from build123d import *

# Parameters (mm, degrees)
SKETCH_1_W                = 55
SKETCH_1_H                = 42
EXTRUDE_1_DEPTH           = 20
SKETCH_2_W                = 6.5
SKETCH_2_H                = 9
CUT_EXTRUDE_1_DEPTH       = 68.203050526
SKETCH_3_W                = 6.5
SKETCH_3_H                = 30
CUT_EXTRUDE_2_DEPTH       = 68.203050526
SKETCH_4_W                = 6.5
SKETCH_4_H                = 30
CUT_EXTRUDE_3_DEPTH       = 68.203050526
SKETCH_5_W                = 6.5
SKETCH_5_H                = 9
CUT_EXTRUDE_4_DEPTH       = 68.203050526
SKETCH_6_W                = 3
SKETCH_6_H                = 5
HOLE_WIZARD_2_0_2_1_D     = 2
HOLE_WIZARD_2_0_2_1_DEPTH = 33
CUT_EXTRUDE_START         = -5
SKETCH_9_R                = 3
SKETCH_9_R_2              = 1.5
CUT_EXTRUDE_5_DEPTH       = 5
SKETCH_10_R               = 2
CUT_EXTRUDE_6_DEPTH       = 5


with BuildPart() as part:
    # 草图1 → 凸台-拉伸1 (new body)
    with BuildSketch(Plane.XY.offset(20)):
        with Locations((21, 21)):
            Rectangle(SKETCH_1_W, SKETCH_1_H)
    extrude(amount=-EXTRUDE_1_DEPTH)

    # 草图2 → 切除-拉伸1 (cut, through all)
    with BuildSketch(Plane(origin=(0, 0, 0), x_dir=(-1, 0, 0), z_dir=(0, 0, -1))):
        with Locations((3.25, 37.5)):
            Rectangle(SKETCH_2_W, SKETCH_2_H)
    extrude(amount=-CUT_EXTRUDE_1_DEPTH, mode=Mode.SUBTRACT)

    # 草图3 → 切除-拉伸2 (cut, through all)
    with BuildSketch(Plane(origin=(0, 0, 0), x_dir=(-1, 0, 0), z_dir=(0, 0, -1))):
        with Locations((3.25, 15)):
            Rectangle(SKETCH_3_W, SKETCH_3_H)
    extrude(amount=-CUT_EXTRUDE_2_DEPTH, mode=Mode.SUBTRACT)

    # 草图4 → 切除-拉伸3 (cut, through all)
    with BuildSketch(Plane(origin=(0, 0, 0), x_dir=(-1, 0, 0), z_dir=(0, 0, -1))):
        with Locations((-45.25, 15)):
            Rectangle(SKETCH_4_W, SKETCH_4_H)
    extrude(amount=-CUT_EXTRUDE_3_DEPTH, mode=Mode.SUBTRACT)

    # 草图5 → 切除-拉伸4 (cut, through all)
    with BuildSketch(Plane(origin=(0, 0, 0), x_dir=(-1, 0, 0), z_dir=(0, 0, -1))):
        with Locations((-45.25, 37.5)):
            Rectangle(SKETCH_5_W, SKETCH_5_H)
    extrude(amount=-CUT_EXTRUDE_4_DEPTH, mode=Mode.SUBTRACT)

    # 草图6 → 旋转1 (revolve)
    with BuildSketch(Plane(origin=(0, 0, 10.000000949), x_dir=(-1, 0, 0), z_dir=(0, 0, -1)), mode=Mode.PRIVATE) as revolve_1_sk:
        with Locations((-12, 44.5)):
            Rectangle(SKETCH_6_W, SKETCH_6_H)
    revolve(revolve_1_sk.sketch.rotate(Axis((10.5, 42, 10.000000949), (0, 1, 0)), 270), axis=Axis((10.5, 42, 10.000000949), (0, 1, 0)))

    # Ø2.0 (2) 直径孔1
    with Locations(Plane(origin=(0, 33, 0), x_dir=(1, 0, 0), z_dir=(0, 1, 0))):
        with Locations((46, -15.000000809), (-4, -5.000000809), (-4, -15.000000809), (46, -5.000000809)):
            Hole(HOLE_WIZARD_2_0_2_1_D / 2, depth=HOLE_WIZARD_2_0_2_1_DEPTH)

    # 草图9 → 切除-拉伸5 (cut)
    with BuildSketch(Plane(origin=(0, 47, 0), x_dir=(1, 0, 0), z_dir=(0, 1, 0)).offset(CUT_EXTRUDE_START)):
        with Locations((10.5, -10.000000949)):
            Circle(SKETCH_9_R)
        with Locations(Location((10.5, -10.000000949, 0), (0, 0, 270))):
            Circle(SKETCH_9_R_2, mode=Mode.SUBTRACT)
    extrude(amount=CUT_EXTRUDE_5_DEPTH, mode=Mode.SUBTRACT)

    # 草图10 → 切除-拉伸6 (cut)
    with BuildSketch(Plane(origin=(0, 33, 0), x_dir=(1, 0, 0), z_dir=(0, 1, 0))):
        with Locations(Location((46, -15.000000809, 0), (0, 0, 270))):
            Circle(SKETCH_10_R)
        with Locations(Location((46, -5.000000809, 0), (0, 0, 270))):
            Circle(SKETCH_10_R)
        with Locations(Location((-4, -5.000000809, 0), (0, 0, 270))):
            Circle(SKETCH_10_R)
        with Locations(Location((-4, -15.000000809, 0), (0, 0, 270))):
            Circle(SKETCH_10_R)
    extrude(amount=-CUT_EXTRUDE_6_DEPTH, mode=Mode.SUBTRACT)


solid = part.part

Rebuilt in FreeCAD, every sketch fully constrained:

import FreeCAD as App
import Part
import Sketcher
from FreeCAD import Vector
Q = App.Units.Quantity


def add_polygon(sketch, points):
    """Adds a closed chain of lines whose ends are joined by coincident constraints."""
    first, n = sketch.GeometryCount, len(points)
    for a, b in zip(points, points[1:] + points[:1]):
        sketch.addGeometry(Part.LineSegment(App.Vector(*a, 0), App.Vector(*b, 0)), False)
    for i in range(n):
        sketch.addConstraint(Sketcher.Constraint("Coincident", first + i, 2, first + (i + 1) % n, 1))

doc = App.newDocument("Part")
body = doc.addObject("PartDesign::Body", "Body")

# Sketch on XY plane
sketch1 = body.newObject("Sketcher::SketchObject", "Sketch")
sketch1.AttachmentSupport = (doc.getObject("XY_Plane"), [""])
sketch1.MapMode = "FlatFace"
sketch1.AttachmentOffset = App.Placement(Vector(0, 0, 20), App.Rotation())
add_polygon(sketch1, [(-6, 42), (-6, 0), (48, 0), (48, 42)])  # lines 0-3
sketch1.addConstraint(Sketcher.Constraint("Vertical", 0))
sketch1.addConstraint(Sketcher.Constraint("Horizontal", 1))
sketch1.addConstraint(Sketcher.Constraint("Vertical", 2))
sketch1.addConstraint(Sketcher.Constraint("Horizontal", 3))
sketch1.addConstraint(Sketcher.Constraint("PointOnObject", 0, 2, -1))
sketch1.addConstraint(Sketcher.Constraint("DistanceX", 1, 1, 1, 2, Q("55 mm")))
sketch1.addConstraint(Sketcher.Constraint("DistanceY", 0, 2, 0, 1, Q("42 mm")))
sketch1.addConstraint(Sketcher.Constraint("DistanceX", 0, 2, -1, 1, Q("6.5 mm")))
pad1 = body.newObject("PartDesign::Pad", "Pad")
pad1.Profile = sketch1
pad1.Length = 20
pad1.Reversed = True

# Sketch on XY plane
sketch2 = body.newObject("Sketcher::SketchObject", "Sketch001")
sketch2.AttachmentSupport = (doc.getObject("XY_Plane"), [""])
sketch2.MapMode = "FlatFace"
add_polygon(sketch2, [(0, 42), (0, 33), (-6, 33), (-6, 42)])  # lines 0-3
sketch2.addConstraint(Sketcher.Constraint("Vertical", 0))
sketch2.addConstraint(Sketcher.Constraint("Horizontal", 1))
sketch2.addConstraint(Sketcher.Constraint("Vertical", 2))
sketch2.addConstraint(Sketcher.Constraint("Horizontal", 3))
sketch2.addConstraint(Sketcher.Constraint("PointOnObject", 0, 2, -2))
sketch2.addConstraint(Sketcher.Constraint("DistanceY", 0, 2, 0, 1, Q("9 mm")))
sketch2.addConstraint(Sketcher.Constraint("DistanceX", 1, 2, 1, 1, Q("6.5 mm")))
sketch2.addConstraint(Sketcher.Constraint("DistanceY", -1, 1, 0, 2, Q("33 mm")))
pocket1 = body.newObject("PartDesign::Pocket", "Pocket")
pocket1.Profile = sketch2
pocket1.Type = "ThroughAll"
pocket1.Reversed = True

# Sketch on XY plane
sketch3 = body.newObject("Sketcher::SketchObject", "Sketch002")
sketch3.AttachmentSupport = (doc.getObject("XY_Plane"), [""])
sketch3.MapMode = "FlatFace"
add_polygon(sketch3, [(0, 30), (0, 0), (-6, 0), (-6, 30)])  # lines 0-3
sketch3.addConstraint(Sketcher.Constraint("Vertical", 0))
sketch3.addConstraint(Sketcher.Constraint("Horizontal", 1))
sketch3.addConstraint(Sketcher.Constraint("Vertical", 2))
sketch3.addConstraint(Sketcher.Constraint("Horizontal", 3))
sketch3.addConstraint(Sketcher.Constraint("Coincident", 0, 2, -1, 1))
sketch3.addConstraint(Sketcher.Constraint("DistanceY", 0, 2, 0, 1, Q("30 mm")))
sketch3.addConstraint(Sketcher.Constraint("DistanceX", 1, 2, 1, 1, Q("6.5 mm")))
pocket2 = body.newObject("PartDesign::Pocket", "Pocket001")
pocket2.Profile = sketch3
pocket2.Type = "ThroughAll"
pocket2.Reversed = True

# Sketch on XY plane
sketch4 = body.newObject("Sketcher::SketchObject", "Sketch003")
sketch4.AttachmentSupport = (doc.getObject("XY_Plane"), [""])
sketch4.MapMode = "FlatFace"
add_polygon(sketch4, [(48, 30), (48, 0), (42, 0), (42, 30)])  # lines 0-3
sketch4.addConstraint(Sketcher.Constraint("Vertical", 0))
sketch4.addConstraint(Sketcher.Constraint("Horizontal", 1))
sketch4.addConstraint(Sketcher.Constraint("Vertical", 2))
sketch4.addConstraint(Sketcher.Constraint("Horizontal", 3))
sketch4.addConstraint(Sketcher.Constraint("PointOnObject", 0, 2, -1))
sketch4.addConstraint(Sketcher.Constraint("DistanceY", 0, 2, 0, 1, Q("30 mm")))
sketch4.addConstraint(Sketcher.Constraint("DistanceX", 1, 2, 1, 1, Q("6.5 mm")))
sketch4.addConstraint(Sketcher.Constraint("DistanceX", -1, 1, 1, 2, Q("42 mm")))
pocket3 = body.newObject("PartDesign::Pocket", "Pocket002")
pocket3.Profile = sketch4
pocket3.Type = "ThroughAll"
pocket3.Reversed = True

# Sketch on XY plane
sketch5 = body.newObject("Sketcher::SketchObject", "Sketch004")
sketch5.AttachmentSupport = (doc.getObject("XY_Plane"), [""])
sketch5.MapMode = "FlatFace"
add_polygon(sketch5, [(48, 42), (48, 33), (42, 33), (42, 42)])  # lines 0-3
sketch5.addConstraint(Sketcher.Constraint("Vertical", 0))
sketch5.addConstraint(Sketcher.Constraint("Horizontal", 1))
sketch5.addConstraint(Sketcher.Constraint("Vertical", 2))
sketch5.addConstraint(Sketcher.Constraint("Horizontal", 3))
sketch5.addConstraint(Sketcher.Constraint("DistanceY", 0, 2, 0, 1, Q("9 mm")))
sketch5.addConstraint(Sketcher.Constraint("DistanceX", 1, 2, 1, 1, Q("6.5 mm")))
sketch5.addConstraint(Sketcher.Constraint("DistanceY", -1, 1, 0, 2, Q("33 mm")))
sketch5.addConstraint(Sketcher.Constraint("DistanceX", -1, 1, 1, 2, Q("42 mm")))
pocket4 = body.newObject("PartDesign::Pocket", "Pocket003")
pocket4.Profile = sketch5
pocket4.Type = "ThroughAll"
pocket4.Reversed = True

# Sketch on XY plane
sketch6 = body.newObject("Sketcher::SketchObject", "Sketch005")
sketch6.AttachmentSupport = (doc.getObject("XY_Plane"), [""])
sketch6.MapMode = "FlatFace"
sketch6.AttachmentOffset = App.Placement(Vector(0, 0, 10.000001), App.Rotation())
add_polygon(sketch6, [(13.5, 47), (13.5, 42), (10.5, 42), (10.5, 47)])  # lines 0-3
sketch6.addGeometry(Part.LineSegment(Vector(10.5, 42, 0), Vector(10.5, 47, 0)), True)  # axis
sketch6.addConstraint(Sketcher.Constraint("Vertical", 0))
sketch6.addConstraint(Sketcher.Constraint("Horizontal", 1))
sketch6.addConstraint(Sketcher.Constraint("Vertical", 2))
sketch6.addConstraint(Sketcher.Constraint("Horizontal", 3))
sketch6.addConstraint(Sketcher.Constraint("Vertical", 4))
sketch6.addConstraint(Sketcher.Constraint("Coincident", 4, 1, 1, 2))
sketch6.addConstraint(Sketcher.Constraint("Horizontal", 3, 2, 4, 2))
sketch6.addConstraint(Sketcher.Constraint("DistanceX", 1, 2, 1, 1, Q("3 mm")))
sketch6.addConstraint(Sketcher.Constraint("DistanceY", 0, 2, 0, 1, Q("5 mm")))
sketch6.addConstraint(Sketcher.Constraint("DistanceY", -1, 1, 0, 2, Q("42 mm")))
sketch6.addConstraint(Sketcher.Constraint("DistanceX", -1, 1, 0, 2, Q("13.5 mm")))
revolution = body.newObject("PartDesign::Revolution", "Revolution")
revolution.Profile = sketch6
revolution.ReferenceAxis = (sketch6, ["Axis0"])
revolution.Angle = 360

# Sketch on XZ plane
sketch7 = body.newObject("Sketcher::SketchObject", "Sketch006")
sketch7.AttachmentSupport = (doc.getObject("XZ_Plane"), [""])
sketch7.MapMode = "FlatFace"
sketch7.AttachmentOffset = App.Placement(Vector(0, 0, -33), App.Rotation())
sketch7.addGeometry(Part.Circle(Vector(46, 15, 0), Vector(0, 0, 1), 1), False)
sketch7.addGeometry(Part.Circle(Vector(-4, 5, 0), Vector(0, 0, 1), 1), False)
sketch7.addGeometry(Part.Circle(Vector(-4, 15, 0), Vector(0, 0, 1), 1), False)
sketch7.addGeometry(Part.Circle(Vector(46, 5, 0), Vector(0, 0, 1), 1), False)
sketch7.addConstraint(Sketcher.Constraint("Equal", 0, 1))
sketch7.addConstraint(Sketcher.Constraint("Equal", 1, 2))
sketch7.addConstraint(Sketcher.Constraint("Equal", 2, 3))
sketch7.addConstraint(Sketcher.Constraint("Horizontal", 0, 3, 2, 3))
sketch7.addConstraint(Sketcher.Constraint("Horizontal", 1, 3, 3, 3))
sketch7.addConstraint(Sketcher.Constraint("Vertical", 1, 3, 2, 3))
sketch7.addConstraint(Sketcher.Constraint("Vertical", 0, 3, 3, 3))
sketch7.addConstraint(Sketcher.Constraint("Diameter", 0, Q("2 mm")))
sketch7.addConstraint(Sketcher.Constraint("DistanceX", -1, 1, 0, 3, Q("46 mm")))
sketch7.addConstraint(Sketcher.Constraint("DistanceY", -1, 1, 0, 3, Q("15.000001 mm")))
sketch7.addConstraint(Sketcher.Constraint("DistanceX", 1, 3, -1, 1, Q("4 mm")))
sketch7.addConstraint(Sketcher.Constraint("DistanceY", -1, 1, 1, 3, Q("5.000001 mm")))
doc.recompute()
hole = body.newObject("PartDesign::Hole", "Hole")
hole.Profile = sketch7
hole.ThreadType = "None"
hole.Diameter = 2
hole.DepthType = "Dimension"
hole.Depth = 33
hole.DrillPoint = "Flat"
hole.Reversed = True

# Sketch on XZ plane
sketch8 = body.newObject("Sketcher::SketchObject", "Sketch007")
sketch8.AttachmentSupport = (doc.getObject("XZ_Plane"), [""])
sketch8.MapMode = "FlatFace"
sketch8.AttachmentOffset = App.Placement(Vector(0, 0, -42), App.Rotation())
sketch8.addGeometry(Part.Circle(Vector(10.5, 10, 0), Vector(0, 0, 1), 3), False)
sketch8.addGeometry(Part.Circle(Vector(10.5, 10, 0), Vector(0, 0, 1), 1.5), False)
sketch8.addConstraint(Sketcher.Constraint("Coincident", 1, 3, 0, 3))
sketch8.addConstraint(Sketcher.Constraint("Diameter", 0, Q("6 mm")))
sketch8.addConstraint(Sketcher.Constraint("Diameter", 1, Q("3 mm")))
sketch8.addConstraint(Sketcher.Constraint("DistanceY", -1, 1, 0, 3, Q("10.000001 mm")))
sketch8.addConstraint(Sketcher.Constraint("DistanceX", -1, 1, 0, 3, Q("10.5 mm")))
pocket5 = body.newObject("PartDesign::Pocket", "Pocket004")
pocket5.Profile = sketch8
pocket5.Length = 5

# Sketch on XZ plane
sketch9 = body.newObject("Sketcher::SketchObject", "Sketch008")
sketch9.AttachmentSupport = (doc.getObject("XZ_Plane"), [""])
sketch9.MapMode = "FlatFace"
sketch9.AttachmentOffset = App.Placement(Vector(0, 0, -33), App.Rotation())
sketch9.addGeometry(Part.Circle(Vector(46, 15, 0), Vector(0, 0, 1), 2), False)
sketch9.addGeometry(Part.Circle(Vector(46, 5, 0), Vector(0, 0, 1), 2), False)
sketch9.addGeometry(Part.Circle(Vector(-4, 5, 0), Vector(0, 0, 1), 2), False)
sketch9.addGeometry(Part.Circle(Vector(-4, 15, 0), Vector(0, 0, 1), 2), False)
sketch9.addConstraint(Sketcher.Constraint("Equal", 0, 1))
sketch9.addConstraint(Sketcher.Constraint("Equal", 1, 2))
sketch9.addConstraint(Sketcher.Constraint("Equal", 2, 3))
sketch9.addConstraint(Sketcher.Constraint("Horizontal", 1, 3, 2, 3))
sketch9.addConstraint(Sketcher.Constraint("Horizontal", 0, 3, 3, 3))
sketch9.addConstraint(Sketcher.Constraint("Vertical", 0, 3, 1, 3))
sketch9.addConstraint(Sketcher.Constraint("Vertical", 2, 3, 3, 3))
sketch9.addConstraint(Sketcher.Constraint("Diameter", 0, Q("4 mm")))
sketch9.addConstraint(Sketcher.Constraint("DistanceX", -1, 1, 0, 3, Q("46 mm")))
sketch9.addConstraint(Sketcher.Constraint("DistanceY", -1, 1, 0, 3, Q("15.000001 mm")))
sketch9.addConstraint(Sketcher.Constraint("DistanceY", -1, 1, 1, 3, Q("5.000001 mm")))
sketch9.addConstraint(Sketcher.Constraint("DistanceX", 2, 3, -1, 1, Q("4 mm")))
pocket6 = body.newObject("PartDesign::Pocket", "Pocket005")
pocket6.Profile = sketch9
pocket6.Length = 5
pocket6.Reversed = True

doc.recompute()
